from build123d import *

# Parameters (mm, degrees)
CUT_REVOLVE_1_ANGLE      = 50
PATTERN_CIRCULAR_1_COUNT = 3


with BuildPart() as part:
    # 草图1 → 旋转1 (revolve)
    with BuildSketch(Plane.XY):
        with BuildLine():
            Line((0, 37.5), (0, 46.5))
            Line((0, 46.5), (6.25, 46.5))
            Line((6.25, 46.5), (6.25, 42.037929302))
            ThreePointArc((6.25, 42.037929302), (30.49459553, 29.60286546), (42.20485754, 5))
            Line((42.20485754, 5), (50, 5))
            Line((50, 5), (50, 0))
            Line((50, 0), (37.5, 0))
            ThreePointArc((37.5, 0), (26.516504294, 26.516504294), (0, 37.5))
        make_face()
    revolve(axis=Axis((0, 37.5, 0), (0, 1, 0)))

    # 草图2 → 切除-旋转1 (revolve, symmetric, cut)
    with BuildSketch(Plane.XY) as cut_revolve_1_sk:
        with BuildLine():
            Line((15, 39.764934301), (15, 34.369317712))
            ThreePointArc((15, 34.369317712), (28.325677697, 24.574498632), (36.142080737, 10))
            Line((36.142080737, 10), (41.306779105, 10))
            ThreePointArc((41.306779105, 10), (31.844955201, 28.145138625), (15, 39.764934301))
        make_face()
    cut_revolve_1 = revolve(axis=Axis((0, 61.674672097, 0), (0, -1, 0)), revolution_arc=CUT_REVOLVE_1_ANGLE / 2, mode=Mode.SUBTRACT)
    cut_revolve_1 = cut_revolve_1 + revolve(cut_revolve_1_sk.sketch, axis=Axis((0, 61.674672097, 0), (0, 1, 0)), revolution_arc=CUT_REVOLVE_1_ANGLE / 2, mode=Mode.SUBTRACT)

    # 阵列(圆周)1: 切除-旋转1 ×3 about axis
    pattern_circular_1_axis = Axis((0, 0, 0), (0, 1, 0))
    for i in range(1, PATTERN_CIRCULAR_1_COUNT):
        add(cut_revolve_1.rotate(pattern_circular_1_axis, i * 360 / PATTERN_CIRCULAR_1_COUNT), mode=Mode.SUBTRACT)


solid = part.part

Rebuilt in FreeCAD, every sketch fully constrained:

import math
import FreeCAD as App
import Part
import Sketcher
from FreeCAD import Vector

doc = App.newDocument("Part")
body = doc.addObject("PartDesign::Body", "Body")

sketch1 = body.newObject("Sketcher::SketchObject", "Sketch")
sketch1.AttachmentSupport = (doc.getObject("XY_Plane"), [""])
sketch1.MapMode = "FlatFace"
sketch1.addGeometry(Part.LineSegment(Vector(0, 46.5, 0), Vector(0, 37.5, 0)), False)
sketch1.addGeometry(Part.ArcOfCircle(Part.Circle(Vector(0, 0, 0), Vector(0, 0, 1), 37.5), math.radians(0), math.radians(90)), False)
sketch1.addGeometry(Part.LineSegment(Vector(37.5, 0, 0), Vector(50, 0, 0)), False)
sketch1.addGeometry(Part.LineSegment(Vector(50, 0, 0), Vector(50, 5, 0)), False)
sketch1.addGeometry(Part.LineSegment(Vector(50, 5, 0), Vector(42.2, 5, 0)), False)
sketch1.addGeometry(Part.ArcOfCircle(Part.Circle(Vector(0, 0, 0), Vector(0, 0, 1), 42.5), math.radians(7), math.radians(82)), False)
sketch1.addGeometry(Part.LineSegment(Vector(6.2, 42, 0), Vector(6.2, 46.5, 0)), False)
sketch1.addGeometry(Part.LineSegment(Vector(6.2, 46.5, 0), Vector(0, 46.5, 0)), False)
sketch1.addConstraint(Sketcher.Constraint("Coincident", 0, 2, 1, 2))
sketch1.addConstraint(Sketcher.Constraint("Coincident", 1, 1, 2, 1))
sketch1.addConstraint(Sketcher.Constraint("Coincident", 2, 2, 3, 1))
sketch1.addConstraint(Sketcher.Constraint("Coincident", 3, 2, 4, 1))
sketch1.addConstraint(Sketcher.Constraint("Coincident", 4, 2, 5, 1))
sketch1.addConstraint(Sketcher.Constraint("Coincident", 5, 2, 6, 1))
sketch1.addConstraint(Sketcher.Constraint("Coincident", 6, 2, 7, 1))
sketch1.addConstraint(Sketcher.Constraint("Coincident", 7, 2, 0, 1))
sketch1.addConstraint(Sketcher.Constraint("Vertical", 0))
sketch1.addConstraint(Sketcher.Constraint("Horizontal", 2))
sketch1.addConstraint(Sketcher.Constraint("Vertical", 3))
sketch1.addConstraint(Sketcher.Constraint("Horizontal", 4))
sketch1.addConstraint(Sketcher.Constraint("Vertical", 6))
sketch1.addConstraint(Sketcher.Constraint("Horizontal", 7))
sketch1.addConstraint(Sketcher.Constraint("Coincident", 1, 3, -1, 1))
sketch1.addConstraint(Sketcher.Constraint("Coincident", 5, 3, -1, 1))
sketch1.addConstraint(Sketcher.Constraint("PointOnObject", 0, 2, -2))
sketch1.addConstraint(Sketcher.Constraint("PointOnObject", 1, 1, -1))
sketch1.addConstraint(Sketcher.Constraint("Radius", 1, 37.5))
sketch1.addConstraint(Sketcher.Constraint("Radius", 5, 42.5))
sketch1.addConstraint(Sketcher.Constraint("DistanceY", 0, 2, 0, 1, 9.0))
sketch1.addConstraint(Sketcher.Constraint("DistanceY", 3, 1, 3, 2, 5.0))
sketch1.addConstraint(Sketcher.Constraint("DistanceX", 2, 1, 2, 2, 12.5))
sketch1.addConstraint(Sketcher.Constraint("DistanceX", 7, 2, 7, 1, 6.25))
revolution = body.newObject("PartDesign::Revolution", "Revolution")
revolution.Profile = sketch1
revolution.ReferenceAxis = (sketch1, ["V_Axis"])
revolution.Angle = 360

sketch2 = body.newObject("Sketcher::SketchObject", "Sketch001")
sketch2.AttachmentSupport = (doc.getObject("XY_Plane"), [""])
sketch2.MapMode = "FlatFace"
sketch2.addGeometry(Part.LineSegment(Vector(15, 40, 0), Vector(15, 34, 0)), False)
sketch2.addGeometry(Part.ArcOfCircle(Part.Circle(Vector(0, 0, 0), Vector(0, 0, 1), 37), math.radians(15), math.radians(66)), False)
sketch2.addGeometry(Part.LineSegment(Vector(36, 10, 0), Vector(41, 10, 0)), False)
sketch2.addGeometry(Part.ArcOfCircle(Part.Circle(Vector(0, 0, 0), Vector(0, 0, 1), 43), math.radians(14), math.radians(69)), False)
sketch2.addConstraint(Sketcher.Constraint("Coincident", 0, 2, 1, 2))
sketch2.addConstraint(Sketcher.Constraint("Coincident", 1, 1, 2, 1))
sketch2.addConstraint(Sketcher.Constraint("Coincident", 2, 2, 3, 1))
sketch2.addConstraint(Sketcher.Constraint("Coincident", 3, 2, 0, 1))
sketch2.addConstraint(Sketcher.Constraint("Vertical", 0))
sketch2.addConstraint(Sketcher.Constraint("Horizontal", 2))
sketch2.addConstraint(Sketcher.Constraint("Coincident", 1, 3, -1, 1))
sketch2.addConstraint(Sketcher.Constraint("Coincident", 3, 3, -1, 1))
sketch2.addConstraint(Sketcher.Constraint("Radius", 1, 37.5))
sketch2.addConstraint(Sketcher.Constraint("Radius", 3, 42.5))
sketch2.addConstraint(Sketcher.Constraint("DistanceX", -1, 1, 0, 2, 15.0))
sketch2.addConstraint(Sketcher.Constraint("DistanceY", -1, 1, 1, 1, 10.0))
groove = body.newObject("PartDesign::Groove", "Groove")
groove.Profile = sketch2
groove.ReferenceAxis = (sketch2, ["V_Axis"])
groove.Angle = 25
groove.Reversed = True

sketch3 = body.newObject("Sketcher::SketchObject", "Sketch002")
sketch3.AttachmentSupport = (doc.getObject("XY_Plane"), [""])
sketch3.MapMode = "FlatFace"
sketch3.addGeometry(Part.LineSegment(Vector(15, 40, 0), Vector(15, 34, 0)), False)
sketch3.addGeometry(Part.ArcOfCircle(Part.Circle(Vector(0, 0, 0), Vector(0, 0, 1), 37), math.radians(15), math.radians(66)), False)
sketch3.addGeometry(Part.LineSegment(Vector(36, 10, 0), Vector(41, 10, 0)), False)
sketch3.addGeometry(Part.ArcOfCircle(Part.Circle(Vector(0, 0, 0), Vector(0, 0, 1), 43), math.radians(14), math.radians(69)), False)
sketch3.addConstraint(Sketcher.Constraint("Coincident", 0, 2, 1, 2))
sketch3.addConstraint(Sketcher.Constraint("Coincident", 1, 1, 2, 1))
sketch3.addConstraint(Sketcher.Constraint("Coincident", 2, 2, 3, 1))
sketch3.addConstraint(Sketcher.Constraint("Coincident", 3, 2, 0, 1))
sketch3.addConstraint(Sketcher.Constraint("Vertical", 0))
sketch3.addConstraint(Sketcher.Constraint("Horizontal", 2))
sketch3.addConstraint(Sketcher.Constraint("Coincident", 1, 3, -1, 1))
sketch3.addConstraint(Sketcher.Constraint("Coincident", 3, 3, -1, 1))
sketch3.addConstraint(Sketcher.Constraint("Radius", 1, 37.5))
sketch3.addConstraint(Sketcher.Constraint("Radius", 3, 42.5))
sketch3.addConstraint(Sketcher.Constraint("DistanceX", -1, 1, 0, 2, 15.0))
sketch3.addConstraint(Sketcher.Constraint("DistanceY", -1, 1, 1, 1, 10.0))
groove2 = body.newObject("PartDesign::Groove", "Groove001")
groove2.Profile = sketch3
groove2.ReferenceAxis = (sketch3, ["V_Axis"])
groove2.Angle = 25
doc.recompute()

polarpattern = body.newObject("PartDesign::PolarPattern", "PolarPattern")
polarpattern.Originals = [groove, groove2]
polarpattern.Axis = (doc.getObject("Y_Axis"), [""])
polarpattern.Angle = 360
polarpattern.Occurrences = 3
body.Tip = polarpattern

doc.recompute()
